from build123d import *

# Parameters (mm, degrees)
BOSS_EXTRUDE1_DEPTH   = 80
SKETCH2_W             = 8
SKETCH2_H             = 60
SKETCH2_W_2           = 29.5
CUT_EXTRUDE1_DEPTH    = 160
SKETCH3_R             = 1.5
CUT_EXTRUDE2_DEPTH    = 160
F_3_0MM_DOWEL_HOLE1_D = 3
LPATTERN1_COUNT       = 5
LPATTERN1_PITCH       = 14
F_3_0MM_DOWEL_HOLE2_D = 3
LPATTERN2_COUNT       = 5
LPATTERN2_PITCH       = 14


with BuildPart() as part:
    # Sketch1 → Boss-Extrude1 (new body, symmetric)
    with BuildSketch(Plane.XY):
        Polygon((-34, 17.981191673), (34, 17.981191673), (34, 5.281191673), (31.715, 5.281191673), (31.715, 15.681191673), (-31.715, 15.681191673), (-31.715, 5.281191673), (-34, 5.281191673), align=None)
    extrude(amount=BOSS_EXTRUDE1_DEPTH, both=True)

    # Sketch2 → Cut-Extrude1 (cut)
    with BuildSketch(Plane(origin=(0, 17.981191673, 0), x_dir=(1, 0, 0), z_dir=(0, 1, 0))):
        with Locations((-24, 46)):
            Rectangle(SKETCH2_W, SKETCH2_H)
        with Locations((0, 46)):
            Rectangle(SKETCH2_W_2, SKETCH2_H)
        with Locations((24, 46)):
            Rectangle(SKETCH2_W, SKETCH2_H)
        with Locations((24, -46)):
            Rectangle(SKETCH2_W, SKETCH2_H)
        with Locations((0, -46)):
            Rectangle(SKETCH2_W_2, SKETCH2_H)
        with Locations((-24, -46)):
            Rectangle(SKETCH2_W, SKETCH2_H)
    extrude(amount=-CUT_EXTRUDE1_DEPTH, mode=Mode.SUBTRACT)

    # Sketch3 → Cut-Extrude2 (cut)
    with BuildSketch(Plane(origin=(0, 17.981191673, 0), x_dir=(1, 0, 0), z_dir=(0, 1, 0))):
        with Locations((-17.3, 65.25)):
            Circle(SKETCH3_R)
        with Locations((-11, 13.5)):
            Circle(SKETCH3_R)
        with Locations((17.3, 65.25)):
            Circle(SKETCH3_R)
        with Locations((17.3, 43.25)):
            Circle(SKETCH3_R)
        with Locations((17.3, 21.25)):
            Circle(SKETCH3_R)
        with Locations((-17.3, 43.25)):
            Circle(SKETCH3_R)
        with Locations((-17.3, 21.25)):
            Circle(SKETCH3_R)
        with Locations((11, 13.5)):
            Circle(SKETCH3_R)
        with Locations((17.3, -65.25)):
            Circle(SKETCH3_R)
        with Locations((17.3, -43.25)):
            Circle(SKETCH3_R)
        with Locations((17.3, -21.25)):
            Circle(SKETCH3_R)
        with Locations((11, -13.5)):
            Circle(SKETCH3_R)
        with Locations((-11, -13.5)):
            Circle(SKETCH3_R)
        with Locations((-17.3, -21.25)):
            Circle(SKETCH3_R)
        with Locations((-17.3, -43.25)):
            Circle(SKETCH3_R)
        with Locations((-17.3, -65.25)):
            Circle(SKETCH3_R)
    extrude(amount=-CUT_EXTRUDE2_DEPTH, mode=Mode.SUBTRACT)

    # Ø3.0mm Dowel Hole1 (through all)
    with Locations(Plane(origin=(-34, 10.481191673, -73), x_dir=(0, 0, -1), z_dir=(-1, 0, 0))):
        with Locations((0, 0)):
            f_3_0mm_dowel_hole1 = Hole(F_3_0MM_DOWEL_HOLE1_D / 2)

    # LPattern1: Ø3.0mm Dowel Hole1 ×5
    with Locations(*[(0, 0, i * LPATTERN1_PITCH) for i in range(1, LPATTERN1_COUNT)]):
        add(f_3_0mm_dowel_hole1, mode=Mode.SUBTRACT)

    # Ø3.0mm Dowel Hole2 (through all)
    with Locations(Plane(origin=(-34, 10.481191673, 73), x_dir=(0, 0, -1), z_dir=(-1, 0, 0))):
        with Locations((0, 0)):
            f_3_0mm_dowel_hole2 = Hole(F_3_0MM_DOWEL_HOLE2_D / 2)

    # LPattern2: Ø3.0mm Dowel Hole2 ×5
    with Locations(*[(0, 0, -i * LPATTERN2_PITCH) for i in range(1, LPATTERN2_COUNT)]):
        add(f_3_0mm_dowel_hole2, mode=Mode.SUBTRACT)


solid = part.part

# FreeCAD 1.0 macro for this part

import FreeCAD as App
import Part
import Sketcher

V = App.Vector
Q = App.Units.Quantity


def add_polygon(sketch, points):
    """Adds a closed chain of lines whose ends are joined by coincident constraints."""
    first, n = sketch.GeometryCount, len(points)
    for a, b in zip(points, points[1:] + points[:1]):
        sketch.addGeometry(Part.LineSegment(App.Vector(*a, 0), App.Vector(*b, 0)), False)
    for i in range(n):
        sketch.addConstraint(Sketcher.Constraint("Coincident", first + i, 2, first + (i + 1) % n, 1))

doc = App.newDocument("Part")
body = doc.addObject("PartDesign::Body", "Body")

# Sketch on XY plane
sketch1 = body.newObject("Sketcher::SketchObject", "Sketch")
sketch1.AttachmentSupport = (doc.getObject("XY_Plane"), [""])
sketch1.MapMode = "FlatFace"
add_polygon(sketch1, [(34, 18), (-34, 18), (-34, 5.3), (-31.7, 5.3), (-31.7, 15.7), (31.7, 15.7), (31.7, 5.3), (34, 5.3)])  # lines 0-7
sketch1.addConstraint([
    Sketcher.Constraint("Horizontal", 0),
    Sketcher.Constraint("Vertical", 1),
    Sketcher.Constraint("Horizontal", 2),
    Sketcher.Constraint("Vertical", 3),
    Sketcher.Constraint("Horizontal", 4),
    Sketcher.Constraint("Vertical", 5),
    Sketcher.Constraint("Horizontal", 6),
    Sketcher.Constraint("Vertical", 7),
    Sketcher.Constraint("Symmetric", 2, 2, 5, 2, -2),
    Sketcher.Constraint("Equal", 2, 6),
    Sketcher.Constraint("DistanceX", 0, 2, 0, 1, Q("68 mm")),
    Sketcher.Constraint("DistanceY", 1, 2, 1, 1, Q("12.7 mm")),
    Sketcher.Constraint("DistanceY", 3, 1, 3, 2, Q("10.4 mm")),
    Sketcher.Constraint("DistanceX", 4, 1, 4, 2, Q("63.43 mm")),
    Sketcher.Constraint("DistanceY", -1, 1, 0, 2, Q("17.981192 mm")),
])
pad1 = body.newObject("PartDesign::Pad", "Pad")
pad1.Profile = sketch1
pad1.Length = 160
pad1.Midplane = True

# Sketch on XZ plane
sketch2 = body.newObject("Sketcher::SketchObject", "Sketch001")
sketch2.AttachmentSupport = (doc.getObject("XZ_Plane"), [""])
sketch2.MapMode = "FlatFace"
sketch2.AttachmentOffset = App.Placement(V(0, 0, -17.981192), App.Rotation())
add_polygon(sketch2, [(-28, -76), (-28, -16), (-20, -16), (-20, -76)])  # lines 0-3
add_polygon(sketch2, [(-15, -76), (-15, -16), (15, -16), (15, -76)])  # lines 4-7
add_polygon(sketch2, [(20, -76), (20, -16), (28, -16), (28, -76)])  # lines 8-11
add_polygon(sketch2, [(20, 16), (20, 76), (28, 76), (28, 16)])  # lines 12-15
add_polygon(sketch2, [(-15, 16), (-15, 76), (15, 76), (15, 16)])  # lines 16-19
add_polygon(sketch2, [(-28, 16), (-28, 76), (-20, 76), (-20, 16)])  # lines 20-23
sketch2.addConstraint([
    Sketcher.Constraint("Vertical", 0),
    Sketcher.Constraint("Horizontal", 1),
    Sketcher.Constraint("Vertical", 2),
    Sketcher.Constraint("Horizontal", 3),
    Sketcher.Constraint("Vertical", 4),
    Sketcher.Constraint("Horizontal", 5),
    Sketcher.Constraint("Vertical", 6),
    Sketcher.Constraint("Horizontal", 7),
    Sketcher.Constraint("Vertical", 8),
    Sketcher.Constraint("Horizontal", 9),
    Sketcher.Constraint("Vertical", 10),
    Sketcher.Constraint("Horizontal", 11),
    Sketcher.Constraint("Vertical", 12),
    Sketcher.Constraint("Horizontal", 13),
    Sketcher.Constraint("Vertical", 14),
    Sketcher.Constraint("Horizontal", 15),
    Sketcher.Constraint("Vertical", 16),
    Sketcher.Constraint("Horizontal", 17),
    Sketcher.Constraint("Vertical", 18),
    Sketcher.Constraint("Horizontal", 19),
    Sketcher.Constraint("Vertical", 20),
    Sketcher.Constraint("Horizontal", 21),
    Sketcher.Constraint("Vertical", 22),
    Sketcher.Constraint("Horizontal", 23),
    Sketcher.Constraint("Symmetric", 2, 2, 12, 2, -1, 1),
    Sketcher.Constraint("Symmetric", 0, 2, 14, 2, -1, 1),
    Sketcher.Constraint("Symmetric", 6, 2, 16, 2, -1, 1),
    Sketcher.Constraint("Symmetric", 4, 2, 18, 2, -1, 1),
    Sketcher.Constraint("Symmetric", 10, 2, 20, 2, -1, 1),
    Sketcher.Constraint("Symmetric", 8, 2, 22, 2, -1, 1),
    Sketcher.Constraint("Symmetric", 1, 2, 8, 2, -2),
    Sketcher.Constraint("Symmetric", 3, 2, 10, 2, -2),
    Sketcher.Constraint("Horizontal", 1, 2, 4, 2),
    Sketcher.Constraint("Horizontal", 3, 2, 6, 2),
    Sketcher.Constraint("Vertical", 7, 2, 16, 2),
    Sketcher.Constraint("DistanceX", 1, 1, 1, 2, Q("8 mm")),
    Sketcher.Constraint("DistanceY", 0, 1, 0, 2, Q("60 mm")),
    Sketcher.Constraint("DistanceX", 5, 1, 5, 2, Q("29.5 mm")),
    Sketcher.Constraint("DistanceX", 0, 2, -1, 1, Q("28 mm")),
    Sketcher.Constraint("DistanceY", 0, 2, -1, 1, Q("16 mm")),
])
pocket1 = body.newObject("PartDesign::Pocket", "Pocket")
pocket1.Profile = sketch2
pocket1.Length = 160
pocket1.Reversed = True

# Sketch on XZ plane
sketch3 = body.newObject("Sketcher::SketchObject", "Sketch002")
sketch3.AttachmentSupport = (doc.getObject("XZ_Plane"), [""])
sketch3.MapMode = "FlatFace"
sketch3.AttachmentOffset = App.Placement(V(0, 0, -17.981192), App.Rotation())
sketch3.addGeometry([
    Part.Circle(V(-17.3, -65.2, 0), V(0, 0, 1), 1.5),  # 0
    Part.Circle(V(-11, -13.5, 0), V(0, 0, 1), 1.5),  # 1
    Part.Circle(V(17.3, -65.2, 0), V(0, 0, 1), 1.5),  # 2
    Part.Circle(V(17.3, -43.2, 0), V(0, 0, 1), 1.5),  # 3
    Part.Circle(V(17.3, -21.2, 0), V(0, 0, 1), 1.5),  # 4
    Part.Circle(V(-17.3, -43.2, 0), V(0, 0, 1), 1.5),  # 5
    Part.Circle(V(-17.3, -21.2, 0), V(0, 0, 1), 1.5),  # 6
    Part.Circle(V(11, -13.5, 0), V(0, 0, 1), 1.5),  # 7
    Part.Circle(V(17.3, 65.2, 0), V(0, 0, 1), 1.5),  # 8
    Part.Circle(V(17.3, 43.2, 0), V(0, 0, 1), 1.5),  # 9
    Part.Circle(V(17.3, 21.2, 0), V(0, 0, 1), 1.5),  # 10
    Part.Circle(V(11, 13.5, 0), V(0, 0, 1), 1.5),  # 11
    Part.Circle(V(-11, 13.5, 0), V(0, 0, 1), 1.5),  # 12
    Part.Circle(V(-17.3, 21.2, 0), V(0, 0, 1), 1.5),  # 13
    Part.Circle(V(-17.3, 43.2, 0), V(0, 0, 1), 1.5),  # 14
    Part.Circle(V(-17.3, 65.2, 0), V(0, 0, 1), 1.5),  # 15
], False)
sketch3.addConstraint([
    Sketcher.Constraint("Equal", 0, 1),
    Sketcher.Constraint("Equal", 1, 2),
    Sketcher.Constraint("Equal", 2, 3),
    Sketcher.Constraint("Equal", 3, 4),
    Sketcher.Constraint("Equal", 4, 5),
    Sketcher.Constraint("Equal", 5, 6),
    Sketcher.Constraint("Equal", 6, 7),
    Sketcher.Constraint("Equal", 7, 8),
    Sketcher.Constraint("Equal", 8, 9),
    Sketcher.Constraint("Equal", 9, 10),
    Sketcher.Constraint("Equal", 10, 11),
    Sketcher.Constraint("Equal", 11, 12),
    Sketcher.Constraint("Equal", 12, 13),
    Sketcher.Constraint("Equal", 13, 14),
    Sketcher.Constraint("Equal", 14, 15),
    Sketcher.Constraint("Symmetric", 0, 3, 8, 3, -1, 1),
    Sketcher.Constraint("Symmetric", 5, 3, 9, 3, -1, 1),
    Sketcher.Constraint("Symmetric", 6, 3, 10, 3, -1, 1),
    Sketcher.Constraint("Symmetric", 1, 3, 11, 3, -1, 1),
    Sketcher.Constraint("Symmetric", 7, 3, 12, 3, -1, 1),
    Sketcher.Constraint("Symmetric", 4, 3, 13, 3, -1, 1),
    Sketcher.Constraint("Symmetric", 3, 3, 14, 3, -1, 1),
    Sketcher.Constraint("Symmetric", 2, 3, 15, 3, -1, 1),
    Sketcher.Constraint("Symmetric", 0, 3, 2, 3, -2),
    Sketcher.Constraint("Symmetric", 3, 3, 5, 3, -2),
    Sketcher.Constraint("Symmetric", 4, 3, 6, 3, -2),
    Sketcher.Constraint("Symmetric", 1, 3, 7, 3, -2),
    Sketcher.Constraint("Vertical", 2, 3, 3, 3),
    Sketcher.Constraint("Vertical", 3, 3, 4, 3),
    Sketcher.Constraint("Diameter", 0, Q("3 mm")),
    Sketcher.Constraint("DistanceX", 1, 3, -1, 1, Q("11 mm")),
    Sketcher.Constraint("DistanceY", 2, 3, 3, 3, Q("22 mm")),
    Sketcher.Constraint("DistanceY", 3, 3, 4, 3, Q("22 mm")),
    Sketcher.Constraint("DistanceY", 7, 3, 11, 3, Q("27 mm")),
    Sketcher.Constraint("DistanceX", 0, 3, -1, 1, Q("17.3 mm")),
    Sketcher.Constraint("DistanceY", 4, 3, 8, 3, Q("86.5 mm")),
])
pocket2 = body.newObject("PartDesign::Pocket", "Pocket001")
pocket2.Profile = sketch3
pocket2.Length = 160
pocket2.Reversed = True

# Sketch on YZ plane
sketch4 = body.newObject("Sketcher::SketchObject", "Sketch003")
sketch4.AttachmentSupport = (doc.getObject("YZ_Plane"), [""])
sketch4.MapMode = "FlatFace"
sketch4.AttachmentOffset = App.Placement(V(0, 0, -34), App.Rotation())
sketch4.addGeometry(Part.Circle(V(10.5, -73, 0), V(0, 0, 1), 1.5), False)
sketch4.addConstraint([
    Sketcher.Constraint("Diameter", 0, Q("3 mm")),
    Sketcher.Constraint("DistanceY", 0, 3, -1, 1, Q("73 mm")),
    Sketcher.Constraint("DistanceX", -1, 1, 0, 3, Q("10.481192 mm")),
])
doc.recompute()
hole = body.newObject("PartDesign::Hole", "Hole")
hole.Profile = sketch4
hole.ThreadType = "None"
hole.Diameter = 3
hole.DepthType = "ThroughAll"
hole.Reversed = True
doc.recompute()

linearpattern = body.newObject("PartDesign::LinearPattern", "LinearPattern")
linearpattern.Originals = [hole]
linearpattern.Direction = (doc.getObject("Z_Axis"), [""])
linearpattern.Mode = "offset"
linearpattern.Offset = 14
linearpattern.Occurrences = 5
body.Tip = linearpattern

# Sketch on YZ plane
sketch5 = body.newObject("Sketcher::SketchObject", "Sketch004")
sketch5.AttachmentSupport = (doc.getObject("YZ_Plane"), [""])
sketch5.MapMode = "FlatFace"
sketch5.AttachmentOffset = App.Placement(V(0, 0, -34), App.Rotation())
sketch5.addGeometry(Part.Circle(V(10.5, 73, 0), V(0, 0, 1), 1.5), False)
sketch5.addConstraint([
    Sketcher.Constraint("Diameter", 0, Q("3 mm")),
    Sketcher.Constraint("DistanceY", -1, 1, 0, 3, Q("73 mm")),
    Sketcher.Constraint("DistanceX", -1, 1, 0, 3, Q("10.481192 mm")),
])
doc.recompute()
hole2 = body.newObject("PartDesign::Hole", "Hole001")
hole2.Profile = sketch5
hole2.ThreadType = "None"
hole2.Diameter = 3
hole2.DepthType = "ThroughAll"
hole2.Reversed = True
doc.recompute()

linearpattern2 = body.newObject("PartDesign::LinearPattern", "LinearPattern001")
linearpattern2.Originals = [hole2]
linearpattern2.Direction = (doc.getObject("Z_Axis"), [""])
linearpattern2.Mode = "offset"
linearpattern2.Offset = 14
linearpattern2.Occurrences = 5
linearpattern2.Reversed = True
body.Tip = linearpattern2

doc.recompute()
